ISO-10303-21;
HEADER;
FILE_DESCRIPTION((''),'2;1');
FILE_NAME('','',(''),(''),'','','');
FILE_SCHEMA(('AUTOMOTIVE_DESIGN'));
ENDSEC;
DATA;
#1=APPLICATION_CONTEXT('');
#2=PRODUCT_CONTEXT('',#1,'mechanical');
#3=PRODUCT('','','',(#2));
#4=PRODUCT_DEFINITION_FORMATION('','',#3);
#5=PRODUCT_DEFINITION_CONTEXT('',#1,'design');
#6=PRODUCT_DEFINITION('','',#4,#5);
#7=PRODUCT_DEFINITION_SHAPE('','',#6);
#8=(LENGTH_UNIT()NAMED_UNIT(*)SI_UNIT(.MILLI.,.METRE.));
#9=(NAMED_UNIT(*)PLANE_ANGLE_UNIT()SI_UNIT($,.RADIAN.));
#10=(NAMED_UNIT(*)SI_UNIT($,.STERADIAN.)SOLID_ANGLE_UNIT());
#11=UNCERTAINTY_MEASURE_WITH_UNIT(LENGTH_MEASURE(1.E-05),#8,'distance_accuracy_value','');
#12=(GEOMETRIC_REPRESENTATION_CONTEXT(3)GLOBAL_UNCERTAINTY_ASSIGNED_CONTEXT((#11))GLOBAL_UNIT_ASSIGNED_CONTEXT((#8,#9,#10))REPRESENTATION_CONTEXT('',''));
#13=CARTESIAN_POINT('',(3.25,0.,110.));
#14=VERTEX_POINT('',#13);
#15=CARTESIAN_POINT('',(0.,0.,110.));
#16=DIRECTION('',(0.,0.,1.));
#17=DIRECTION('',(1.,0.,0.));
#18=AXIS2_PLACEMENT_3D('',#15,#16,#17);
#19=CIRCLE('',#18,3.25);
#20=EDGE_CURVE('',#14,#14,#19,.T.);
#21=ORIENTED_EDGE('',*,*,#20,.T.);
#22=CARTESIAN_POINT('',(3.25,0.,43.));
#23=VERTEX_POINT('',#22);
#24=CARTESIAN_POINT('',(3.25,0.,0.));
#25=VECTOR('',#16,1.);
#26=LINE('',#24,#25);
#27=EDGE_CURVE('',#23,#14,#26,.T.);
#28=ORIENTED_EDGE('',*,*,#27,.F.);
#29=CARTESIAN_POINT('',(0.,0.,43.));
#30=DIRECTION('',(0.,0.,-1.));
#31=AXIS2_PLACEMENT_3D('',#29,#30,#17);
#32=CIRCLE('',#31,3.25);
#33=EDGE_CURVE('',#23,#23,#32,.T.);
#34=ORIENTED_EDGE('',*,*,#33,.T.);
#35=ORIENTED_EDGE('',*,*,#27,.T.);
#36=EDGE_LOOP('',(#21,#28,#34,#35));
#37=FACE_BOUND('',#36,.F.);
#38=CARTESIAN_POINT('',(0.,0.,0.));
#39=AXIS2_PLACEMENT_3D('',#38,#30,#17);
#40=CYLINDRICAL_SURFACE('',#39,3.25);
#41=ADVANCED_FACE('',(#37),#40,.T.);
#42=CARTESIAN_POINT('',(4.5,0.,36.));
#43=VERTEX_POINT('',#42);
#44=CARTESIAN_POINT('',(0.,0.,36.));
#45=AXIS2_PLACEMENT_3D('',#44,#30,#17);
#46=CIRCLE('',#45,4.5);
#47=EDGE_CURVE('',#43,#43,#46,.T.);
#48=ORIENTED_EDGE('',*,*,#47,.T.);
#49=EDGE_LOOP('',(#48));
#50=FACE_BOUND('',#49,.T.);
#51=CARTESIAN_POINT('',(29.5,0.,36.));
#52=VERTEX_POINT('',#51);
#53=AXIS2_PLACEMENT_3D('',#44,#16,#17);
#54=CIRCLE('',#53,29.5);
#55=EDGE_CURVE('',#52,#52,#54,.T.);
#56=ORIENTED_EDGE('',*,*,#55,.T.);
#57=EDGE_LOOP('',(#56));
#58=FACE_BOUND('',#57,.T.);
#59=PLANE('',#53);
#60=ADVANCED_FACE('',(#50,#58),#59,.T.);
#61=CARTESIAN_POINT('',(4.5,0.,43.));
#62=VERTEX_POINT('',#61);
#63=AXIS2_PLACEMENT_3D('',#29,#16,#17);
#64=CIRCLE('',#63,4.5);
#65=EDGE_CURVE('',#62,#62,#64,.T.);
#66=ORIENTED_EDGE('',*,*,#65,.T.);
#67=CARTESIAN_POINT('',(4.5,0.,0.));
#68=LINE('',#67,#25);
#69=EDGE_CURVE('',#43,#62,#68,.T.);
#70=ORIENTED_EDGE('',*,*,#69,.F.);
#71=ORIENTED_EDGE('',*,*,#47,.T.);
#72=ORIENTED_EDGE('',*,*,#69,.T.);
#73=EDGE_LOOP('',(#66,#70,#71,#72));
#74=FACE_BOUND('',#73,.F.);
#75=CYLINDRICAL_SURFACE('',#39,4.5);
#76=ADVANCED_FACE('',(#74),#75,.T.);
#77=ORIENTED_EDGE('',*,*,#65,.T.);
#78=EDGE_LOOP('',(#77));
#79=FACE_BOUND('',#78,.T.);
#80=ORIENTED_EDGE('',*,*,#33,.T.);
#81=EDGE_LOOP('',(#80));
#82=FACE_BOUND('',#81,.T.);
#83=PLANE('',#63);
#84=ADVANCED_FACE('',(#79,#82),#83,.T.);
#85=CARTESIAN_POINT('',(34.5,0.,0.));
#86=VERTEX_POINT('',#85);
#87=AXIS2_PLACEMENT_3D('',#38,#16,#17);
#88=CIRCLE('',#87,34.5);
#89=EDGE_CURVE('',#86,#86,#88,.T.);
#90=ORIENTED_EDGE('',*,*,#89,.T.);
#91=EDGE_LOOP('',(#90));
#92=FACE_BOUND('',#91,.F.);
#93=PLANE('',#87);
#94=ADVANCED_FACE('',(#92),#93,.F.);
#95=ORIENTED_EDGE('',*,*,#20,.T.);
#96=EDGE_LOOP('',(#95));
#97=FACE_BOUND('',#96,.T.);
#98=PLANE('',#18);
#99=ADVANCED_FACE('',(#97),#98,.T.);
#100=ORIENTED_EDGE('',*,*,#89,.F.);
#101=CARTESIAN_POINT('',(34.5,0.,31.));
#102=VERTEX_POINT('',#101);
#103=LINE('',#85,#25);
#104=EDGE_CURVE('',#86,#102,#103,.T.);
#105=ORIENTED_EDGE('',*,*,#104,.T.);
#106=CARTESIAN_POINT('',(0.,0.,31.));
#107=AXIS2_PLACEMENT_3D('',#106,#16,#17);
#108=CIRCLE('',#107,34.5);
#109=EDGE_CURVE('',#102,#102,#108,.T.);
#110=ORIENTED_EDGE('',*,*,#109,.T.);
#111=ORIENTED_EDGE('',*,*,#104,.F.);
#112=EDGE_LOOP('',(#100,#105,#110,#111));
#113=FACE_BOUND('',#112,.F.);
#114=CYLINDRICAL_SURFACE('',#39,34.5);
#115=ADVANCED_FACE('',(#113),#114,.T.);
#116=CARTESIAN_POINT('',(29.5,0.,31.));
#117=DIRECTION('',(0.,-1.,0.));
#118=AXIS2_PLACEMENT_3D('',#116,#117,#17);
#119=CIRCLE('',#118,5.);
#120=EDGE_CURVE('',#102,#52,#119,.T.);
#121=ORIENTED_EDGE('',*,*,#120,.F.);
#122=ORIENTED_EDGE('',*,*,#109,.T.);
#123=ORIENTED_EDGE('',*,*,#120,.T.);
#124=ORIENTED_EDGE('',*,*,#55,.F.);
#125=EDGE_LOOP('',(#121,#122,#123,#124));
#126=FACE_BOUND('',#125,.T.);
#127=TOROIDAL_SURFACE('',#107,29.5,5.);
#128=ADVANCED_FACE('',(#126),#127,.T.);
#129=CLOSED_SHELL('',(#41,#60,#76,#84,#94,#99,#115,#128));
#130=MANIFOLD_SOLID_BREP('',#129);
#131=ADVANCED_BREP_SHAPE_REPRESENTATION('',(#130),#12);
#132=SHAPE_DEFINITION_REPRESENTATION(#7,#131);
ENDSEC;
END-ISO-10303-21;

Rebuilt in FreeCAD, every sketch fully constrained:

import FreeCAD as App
import Part
import Sketcher
Q = App.Units.Quantity


def edges_at(feature, points):
    """Names of the edges that pass closest to the given points."""
    edges = feature.Shape.Edges
    near = lambda p: min(range(len(edges)), key=lambda i: edges[i].distToShape(Part.Vertex(*p))[0])
    return sorted({f"Edge{near(p) + 1}" for p in points})

doc = App.newDocument("Part")
params = doc.addObject("Spreadsheet::Sheet", "Params")
for row, (alias, value) in enumerate([
    ("sketch1_diameter", "6.5 mm"),
    ("pad1_length", "110 mm"),
    ("sketch2_diameter", "69 mm"),
    ("pad2_length", "36 mm"),
    ("sketch3_diameter", "9 mm"),
    ("pad3_length", "43 mm"),
    ("fillet_radius", "5 mm"),
], start=1):
    params.set(f"A{row}", alias)
    params.set(f"B{row}", "=" + value)
    params.setAlias(f"B{row}", alias)

body = doc.addObject("PartDesign::Body", "Body")

sketch1 = body.newObject("Sketcher::SketchObject", "Sketch")
sketch1.AttachmentSupport = (doc.getObject("XY_Plane"), [""])
sketch1.MapMode = "FlatFace"
sketch1.addGeometry(Part.Circle(App.Vector(0, 0, 0), App.Vector(0, 0, 1), 3.25), False)
sketch1.addConstraint(Sketcher.Constraint("Coincident", 0, 3, -1, 1))
sketch1.addConstraint(Sketcher.Constraint("Diameter", 0, Q("6.5 mm")))
sketch1.setExpression("Constraints[1]", "Params.sketch1_diameter")
pad1 = body.newObject("PartDesign::Pad", "Pad")
pad1.Profile = sketch1
pad1.setExpression("Length", "Params.pad1_length")

sketch2 = body.newObject("Sketcher::SketchObject", "Sketch001")
sketch2.AttachmentSupport = (doc.getObject("XY_Plane"), [""])
sketch2.MapMode = "FlatFace"
sketch2.addGeometry(Part.Circle(App.Vector(0, 0, 0), App.Vector(0, 0, 1), 34.5), False)
sketch2.addConstraint(Sketcher.Constraint("Coincident", 0, 3, -1, 1))
sketch2.addConstraint(Sketcher.Constraint("Diameter", 0, Q("69 mm")))
sketch2.setExpression("Constraints[1]", "Params.sketch2_diameter")
pad2 = body.newObject("PartDesign::Pad", "Pad001")
pad2.Profile = sketch2
pad2.setExpression("Length", "Params.pad2_length")

sketch3 = body.newObject("Sketcher::SketchObject", "Sketch002")
sketch3.AttachmentSupport = (doc.getObject("XY_Plane"), [""])
sketch3.MapMode = "FlatFace"
sketch3.addGeometry(Part.Circle(App.Vector(0, 0, 0), App.Vector(0, 0, 1), 4.5), False)
sketch3.addConstraint(Sketcher.Constraint("Coincident", 0, 3, -1, 1))
sketch3.addConstraint(Sketcher.Constraint("Diameter", 0, Q("9 mm")))
sketch3.setExpression("Constraints[1]", "Params.sketch3_diameter")
pad3 = body.newObject("PartDesign::Pad", "Pad002")
pad3.Profile = sketch3
pad3.setExpression("Length", "Params.pad3_length")
doc.recompute()

fillet = body.newObject("PartDesign::Fillet", "Fillet")
fillet.Base = (pad3, edges_at(pad3, [(-34.5, 0, 36)]))
fillet.setExpression("Radius", "Params.fillet_radius")

doc.recompute()
